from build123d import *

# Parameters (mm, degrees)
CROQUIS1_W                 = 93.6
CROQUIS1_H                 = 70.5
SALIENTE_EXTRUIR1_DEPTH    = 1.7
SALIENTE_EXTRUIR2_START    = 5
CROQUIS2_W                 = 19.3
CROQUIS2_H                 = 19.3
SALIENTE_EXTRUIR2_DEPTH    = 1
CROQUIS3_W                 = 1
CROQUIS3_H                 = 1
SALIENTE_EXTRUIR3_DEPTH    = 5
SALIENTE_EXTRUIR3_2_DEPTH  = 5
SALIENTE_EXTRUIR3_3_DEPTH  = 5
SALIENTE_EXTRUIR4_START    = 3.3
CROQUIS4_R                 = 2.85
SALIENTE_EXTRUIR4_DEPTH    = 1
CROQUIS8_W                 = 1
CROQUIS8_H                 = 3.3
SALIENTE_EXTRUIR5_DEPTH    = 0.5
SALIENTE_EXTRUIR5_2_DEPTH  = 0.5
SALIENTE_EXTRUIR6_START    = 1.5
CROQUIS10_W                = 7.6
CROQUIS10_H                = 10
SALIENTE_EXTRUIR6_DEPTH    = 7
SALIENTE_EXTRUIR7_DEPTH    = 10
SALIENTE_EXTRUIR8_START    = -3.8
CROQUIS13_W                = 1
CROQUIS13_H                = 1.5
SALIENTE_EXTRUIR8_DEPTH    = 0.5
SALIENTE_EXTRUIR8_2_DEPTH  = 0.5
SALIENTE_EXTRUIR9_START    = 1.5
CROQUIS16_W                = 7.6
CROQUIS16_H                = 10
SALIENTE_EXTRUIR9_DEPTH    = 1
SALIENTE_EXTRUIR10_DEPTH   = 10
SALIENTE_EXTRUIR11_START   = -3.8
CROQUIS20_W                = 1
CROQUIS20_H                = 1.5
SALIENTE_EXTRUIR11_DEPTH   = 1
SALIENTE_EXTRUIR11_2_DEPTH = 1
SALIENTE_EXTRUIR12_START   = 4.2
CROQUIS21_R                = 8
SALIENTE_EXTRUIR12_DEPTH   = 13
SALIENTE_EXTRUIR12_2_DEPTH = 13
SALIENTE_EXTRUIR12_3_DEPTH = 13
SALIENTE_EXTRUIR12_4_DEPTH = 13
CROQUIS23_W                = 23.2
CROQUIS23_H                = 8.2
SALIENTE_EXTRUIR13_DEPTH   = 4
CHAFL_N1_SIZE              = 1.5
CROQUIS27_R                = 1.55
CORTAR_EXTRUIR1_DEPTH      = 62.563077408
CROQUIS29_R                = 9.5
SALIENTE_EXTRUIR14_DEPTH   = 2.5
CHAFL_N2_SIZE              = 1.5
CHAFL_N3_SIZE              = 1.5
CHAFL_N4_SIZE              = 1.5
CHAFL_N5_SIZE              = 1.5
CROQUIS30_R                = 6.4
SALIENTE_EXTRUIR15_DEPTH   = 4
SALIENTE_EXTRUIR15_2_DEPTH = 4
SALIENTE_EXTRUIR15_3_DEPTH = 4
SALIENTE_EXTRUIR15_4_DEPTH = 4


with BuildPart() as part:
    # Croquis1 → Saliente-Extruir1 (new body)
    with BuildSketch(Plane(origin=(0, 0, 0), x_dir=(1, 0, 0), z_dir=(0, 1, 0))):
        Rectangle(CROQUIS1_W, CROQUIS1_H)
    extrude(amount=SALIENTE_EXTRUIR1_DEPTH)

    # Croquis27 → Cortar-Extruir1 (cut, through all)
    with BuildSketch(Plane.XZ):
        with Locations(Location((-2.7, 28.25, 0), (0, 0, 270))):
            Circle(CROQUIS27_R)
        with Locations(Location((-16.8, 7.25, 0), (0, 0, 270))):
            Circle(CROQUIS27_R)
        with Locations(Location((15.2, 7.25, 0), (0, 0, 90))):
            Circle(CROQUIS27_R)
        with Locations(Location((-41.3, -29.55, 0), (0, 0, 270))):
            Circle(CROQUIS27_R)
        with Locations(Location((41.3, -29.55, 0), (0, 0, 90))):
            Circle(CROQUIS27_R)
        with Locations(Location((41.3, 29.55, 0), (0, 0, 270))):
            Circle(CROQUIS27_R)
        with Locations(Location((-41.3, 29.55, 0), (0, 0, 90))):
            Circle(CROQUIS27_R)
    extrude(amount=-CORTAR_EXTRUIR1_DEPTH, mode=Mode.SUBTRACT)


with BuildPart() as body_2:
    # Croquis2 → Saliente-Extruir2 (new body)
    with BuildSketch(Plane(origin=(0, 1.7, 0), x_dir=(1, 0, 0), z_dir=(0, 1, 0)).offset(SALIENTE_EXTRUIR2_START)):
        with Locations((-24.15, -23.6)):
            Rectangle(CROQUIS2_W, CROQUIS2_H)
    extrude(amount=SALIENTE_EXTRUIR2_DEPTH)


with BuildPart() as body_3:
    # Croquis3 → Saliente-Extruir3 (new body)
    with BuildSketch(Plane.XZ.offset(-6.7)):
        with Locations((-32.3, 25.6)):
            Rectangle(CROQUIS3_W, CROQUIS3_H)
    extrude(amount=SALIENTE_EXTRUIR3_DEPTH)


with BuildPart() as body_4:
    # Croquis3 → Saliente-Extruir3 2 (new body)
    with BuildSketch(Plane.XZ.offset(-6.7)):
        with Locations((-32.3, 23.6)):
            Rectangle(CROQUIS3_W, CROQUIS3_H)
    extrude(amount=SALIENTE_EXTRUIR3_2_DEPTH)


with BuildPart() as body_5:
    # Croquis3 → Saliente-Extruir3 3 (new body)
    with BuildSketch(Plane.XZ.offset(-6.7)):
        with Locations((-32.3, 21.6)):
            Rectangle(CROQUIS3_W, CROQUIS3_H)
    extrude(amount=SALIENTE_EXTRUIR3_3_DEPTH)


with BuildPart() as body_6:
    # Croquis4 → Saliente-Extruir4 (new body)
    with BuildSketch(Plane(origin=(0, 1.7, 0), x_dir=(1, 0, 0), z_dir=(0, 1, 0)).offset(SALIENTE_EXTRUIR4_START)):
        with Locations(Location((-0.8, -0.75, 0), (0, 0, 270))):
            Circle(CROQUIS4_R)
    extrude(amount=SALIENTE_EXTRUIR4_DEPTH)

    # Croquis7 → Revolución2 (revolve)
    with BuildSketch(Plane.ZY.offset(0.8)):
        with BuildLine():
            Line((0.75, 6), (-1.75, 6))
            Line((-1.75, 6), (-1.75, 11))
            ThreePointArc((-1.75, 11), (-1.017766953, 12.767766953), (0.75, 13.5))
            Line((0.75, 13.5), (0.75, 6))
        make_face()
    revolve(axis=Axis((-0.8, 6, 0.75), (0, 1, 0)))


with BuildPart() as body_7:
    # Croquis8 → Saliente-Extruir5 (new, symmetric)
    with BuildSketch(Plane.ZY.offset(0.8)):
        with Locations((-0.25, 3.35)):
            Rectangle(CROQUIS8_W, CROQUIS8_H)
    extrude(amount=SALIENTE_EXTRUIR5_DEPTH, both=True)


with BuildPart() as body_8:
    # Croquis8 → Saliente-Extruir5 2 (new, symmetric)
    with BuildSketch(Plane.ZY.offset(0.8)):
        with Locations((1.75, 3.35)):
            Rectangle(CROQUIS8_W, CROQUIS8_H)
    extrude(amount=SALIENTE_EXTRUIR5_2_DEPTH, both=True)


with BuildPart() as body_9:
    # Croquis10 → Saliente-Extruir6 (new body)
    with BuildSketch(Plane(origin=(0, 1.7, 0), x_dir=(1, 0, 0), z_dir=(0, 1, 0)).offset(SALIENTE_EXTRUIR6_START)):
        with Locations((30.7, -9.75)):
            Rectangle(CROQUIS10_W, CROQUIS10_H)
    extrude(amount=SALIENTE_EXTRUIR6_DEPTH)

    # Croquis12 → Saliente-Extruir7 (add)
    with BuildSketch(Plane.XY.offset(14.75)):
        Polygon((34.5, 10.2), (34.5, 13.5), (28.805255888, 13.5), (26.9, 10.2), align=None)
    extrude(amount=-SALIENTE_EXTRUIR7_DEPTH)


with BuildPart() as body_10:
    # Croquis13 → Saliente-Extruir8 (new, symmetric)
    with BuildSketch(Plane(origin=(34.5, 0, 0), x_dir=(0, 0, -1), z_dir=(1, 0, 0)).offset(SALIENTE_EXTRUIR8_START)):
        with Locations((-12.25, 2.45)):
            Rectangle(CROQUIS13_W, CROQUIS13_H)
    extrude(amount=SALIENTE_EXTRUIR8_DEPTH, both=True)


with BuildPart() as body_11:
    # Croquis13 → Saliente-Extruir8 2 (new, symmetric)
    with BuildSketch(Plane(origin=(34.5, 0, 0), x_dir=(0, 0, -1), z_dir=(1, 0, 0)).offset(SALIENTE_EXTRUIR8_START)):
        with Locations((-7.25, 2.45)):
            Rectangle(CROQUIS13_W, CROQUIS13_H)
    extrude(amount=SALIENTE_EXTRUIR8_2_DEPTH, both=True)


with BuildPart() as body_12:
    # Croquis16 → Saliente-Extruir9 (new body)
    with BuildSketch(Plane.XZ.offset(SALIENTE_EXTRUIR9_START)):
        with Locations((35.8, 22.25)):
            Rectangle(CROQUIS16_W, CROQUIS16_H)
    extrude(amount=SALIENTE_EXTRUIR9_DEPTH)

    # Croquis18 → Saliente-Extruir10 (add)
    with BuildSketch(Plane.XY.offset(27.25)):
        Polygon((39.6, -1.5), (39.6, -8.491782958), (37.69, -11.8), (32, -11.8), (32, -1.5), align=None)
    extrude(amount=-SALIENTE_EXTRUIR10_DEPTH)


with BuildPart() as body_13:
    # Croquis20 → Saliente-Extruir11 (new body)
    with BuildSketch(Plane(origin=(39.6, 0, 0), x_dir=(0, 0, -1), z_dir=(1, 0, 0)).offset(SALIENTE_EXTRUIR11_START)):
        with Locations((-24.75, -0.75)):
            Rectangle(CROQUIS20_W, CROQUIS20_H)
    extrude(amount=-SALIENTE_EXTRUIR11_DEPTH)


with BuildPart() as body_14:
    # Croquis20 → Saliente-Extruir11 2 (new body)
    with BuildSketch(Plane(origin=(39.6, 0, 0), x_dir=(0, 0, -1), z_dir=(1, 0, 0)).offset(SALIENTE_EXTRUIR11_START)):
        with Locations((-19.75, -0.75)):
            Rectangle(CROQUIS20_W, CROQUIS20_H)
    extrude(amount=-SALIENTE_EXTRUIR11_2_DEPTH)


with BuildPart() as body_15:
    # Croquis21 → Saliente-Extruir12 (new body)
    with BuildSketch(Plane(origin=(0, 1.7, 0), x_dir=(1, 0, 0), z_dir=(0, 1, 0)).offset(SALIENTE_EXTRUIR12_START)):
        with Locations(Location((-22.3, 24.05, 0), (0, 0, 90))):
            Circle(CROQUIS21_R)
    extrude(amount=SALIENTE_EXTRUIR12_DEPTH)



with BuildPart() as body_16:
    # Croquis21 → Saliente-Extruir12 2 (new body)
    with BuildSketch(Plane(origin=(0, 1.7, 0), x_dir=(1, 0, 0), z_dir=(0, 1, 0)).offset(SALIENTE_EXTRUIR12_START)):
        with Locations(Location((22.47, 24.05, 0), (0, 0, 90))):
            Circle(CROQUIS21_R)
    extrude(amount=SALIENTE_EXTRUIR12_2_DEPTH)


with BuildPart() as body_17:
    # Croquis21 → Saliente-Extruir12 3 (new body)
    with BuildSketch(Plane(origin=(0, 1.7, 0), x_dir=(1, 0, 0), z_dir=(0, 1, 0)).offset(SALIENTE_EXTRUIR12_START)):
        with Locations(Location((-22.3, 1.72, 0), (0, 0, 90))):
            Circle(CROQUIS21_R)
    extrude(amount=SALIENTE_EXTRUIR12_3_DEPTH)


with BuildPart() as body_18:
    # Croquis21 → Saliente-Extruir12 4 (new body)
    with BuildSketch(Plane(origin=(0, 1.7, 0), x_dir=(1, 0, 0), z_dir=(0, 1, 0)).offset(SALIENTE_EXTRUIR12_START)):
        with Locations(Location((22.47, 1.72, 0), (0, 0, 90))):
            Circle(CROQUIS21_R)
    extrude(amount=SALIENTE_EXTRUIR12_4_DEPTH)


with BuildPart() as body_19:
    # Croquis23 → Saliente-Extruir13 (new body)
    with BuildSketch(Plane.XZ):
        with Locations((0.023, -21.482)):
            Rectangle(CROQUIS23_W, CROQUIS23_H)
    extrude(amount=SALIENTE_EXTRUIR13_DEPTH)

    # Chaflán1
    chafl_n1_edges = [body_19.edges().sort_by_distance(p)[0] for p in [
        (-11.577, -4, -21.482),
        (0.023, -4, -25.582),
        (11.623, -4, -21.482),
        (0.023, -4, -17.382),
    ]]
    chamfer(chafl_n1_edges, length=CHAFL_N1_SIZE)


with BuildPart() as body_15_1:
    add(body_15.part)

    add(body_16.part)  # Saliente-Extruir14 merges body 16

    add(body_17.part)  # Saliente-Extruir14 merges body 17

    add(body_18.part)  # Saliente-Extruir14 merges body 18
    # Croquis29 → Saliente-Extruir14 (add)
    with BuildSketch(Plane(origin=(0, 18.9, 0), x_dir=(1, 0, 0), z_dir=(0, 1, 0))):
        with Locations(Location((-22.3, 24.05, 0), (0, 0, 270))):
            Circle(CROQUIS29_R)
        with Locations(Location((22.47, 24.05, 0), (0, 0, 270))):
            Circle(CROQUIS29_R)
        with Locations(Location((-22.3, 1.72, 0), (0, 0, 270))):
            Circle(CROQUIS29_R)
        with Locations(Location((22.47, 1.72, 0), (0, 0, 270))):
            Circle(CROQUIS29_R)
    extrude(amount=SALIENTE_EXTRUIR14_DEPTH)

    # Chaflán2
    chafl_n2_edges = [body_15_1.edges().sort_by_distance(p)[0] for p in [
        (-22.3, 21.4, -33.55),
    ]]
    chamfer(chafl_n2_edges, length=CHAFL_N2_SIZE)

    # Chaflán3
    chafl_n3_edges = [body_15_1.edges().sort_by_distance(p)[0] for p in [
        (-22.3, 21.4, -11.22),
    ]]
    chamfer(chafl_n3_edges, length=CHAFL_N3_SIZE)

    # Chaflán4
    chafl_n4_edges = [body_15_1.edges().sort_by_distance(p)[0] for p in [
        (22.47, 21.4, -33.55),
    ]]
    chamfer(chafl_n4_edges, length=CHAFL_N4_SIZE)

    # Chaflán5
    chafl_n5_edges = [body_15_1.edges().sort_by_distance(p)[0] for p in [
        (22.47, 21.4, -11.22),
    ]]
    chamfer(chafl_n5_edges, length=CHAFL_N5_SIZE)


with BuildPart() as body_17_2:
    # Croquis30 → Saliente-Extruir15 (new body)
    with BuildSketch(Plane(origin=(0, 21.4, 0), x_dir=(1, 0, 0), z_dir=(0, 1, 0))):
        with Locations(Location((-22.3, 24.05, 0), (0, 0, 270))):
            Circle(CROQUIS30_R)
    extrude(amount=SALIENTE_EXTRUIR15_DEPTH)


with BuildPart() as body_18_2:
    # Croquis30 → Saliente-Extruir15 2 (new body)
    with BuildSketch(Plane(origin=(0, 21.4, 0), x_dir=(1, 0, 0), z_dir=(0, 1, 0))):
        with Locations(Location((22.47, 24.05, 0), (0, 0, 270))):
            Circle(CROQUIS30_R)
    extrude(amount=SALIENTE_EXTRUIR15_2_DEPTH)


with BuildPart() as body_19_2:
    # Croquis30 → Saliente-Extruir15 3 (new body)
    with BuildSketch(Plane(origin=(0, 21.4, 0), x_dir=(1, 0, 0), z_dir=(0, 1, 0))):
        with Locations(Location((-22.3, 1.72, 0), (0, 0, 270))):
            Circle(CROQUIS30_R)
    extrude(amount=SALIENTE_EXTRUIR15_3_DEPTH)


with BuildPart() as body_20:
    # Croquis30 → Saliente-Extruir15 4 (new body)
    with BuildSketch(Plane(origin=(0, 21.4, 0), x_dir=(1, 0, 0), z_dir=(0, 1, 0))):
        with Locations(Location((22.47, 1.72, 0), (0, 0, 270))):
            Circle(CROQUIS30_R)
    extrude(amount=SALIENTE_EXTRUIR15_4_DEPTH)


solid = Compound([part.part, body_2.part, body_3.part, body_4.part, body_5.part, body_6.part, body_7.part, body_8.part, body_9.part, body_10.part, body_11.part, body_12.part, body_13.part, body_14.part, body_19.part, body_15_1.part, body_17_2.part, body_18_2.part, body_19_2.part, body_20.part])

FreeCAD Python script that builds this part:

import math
import FreeCAD as App
import Part
import Sketcher

V = App.Vector
Q = App.Units.Quantity


def edges_at(feature, points):
    """Names of the edges that pass closest to the given points."""
    edges = feature.Shape.Edges
    near = lambda p: min(range(len(edges)), key=lambda i: edges[i].distToShape(Part.Vertex(*p))[0])
    return sorted({f"Edge{near(p) + 1}" for p in points})

doc = App.newDocument("Part")
body = doc.addObject("PartDesign::Body", "Body")

# Sketch on XZ plane
sketch1 = doc.addObject("Sketcher::SketchObject", "Sketch")
body.addObject(sketch1)
sketch1.AttachmentSupport = (doc.XZ_Plane, [""])
sketch1.MapMode = "FlatFace"
sketch1.addGeometry(Part.LineSegment(V(-46.8, -35.25, 0), V(-46.8, 35.25, 0)), False)
sketch1.addGeometry(Part.LineSegment(V(-46.8, 35.25, 0), V(46.8, 35.25, 0)), False)
sketch1.addGeometry(Part.LineSegment(V(46.8, 35.25, 0), V(46.8, -35.25, 0)), False)
sketch1.addGeometry(Part.LineSegment(V(46.8, -35.25, 0), V(-46.8, -35.25, 0)), False)
sketch1.addConstraint(Sketcher.Constraint("Coincident", 0, 2, 1, 1))
sketch1.addConstraint(Sketcher.Constraint("Coincident", 1, 2, 2, 1))
sketch1.addConstraint(Sketcher.Constraint("Coincident", 2, 2, 3, 1))
sketch1.addConstraint(Sketcher.Constraint("Coincident", 3, 2, 0, 1))
sketch1.addConstraint(Sketcher.Constraint("Vertical", 0))
sketch1.addConstraint(Sketcher.Constraint("Horizontal", 1))
sketch1.addConstraint(Sketcher.Constraint("Vertical", 2))
sketch1.addConstraint(Sketcher.Constraint("Horizontal", 3))
sketch1.addConstraint(Sketcher.Constraint("Symmetric", 0, 2, 2, 2, -1, 1))
sketch1.addConstraint(Sketcher.Constraint("DistanceX", 1, 1, 1, 2, Q("93.6 mm")))
sketch1.addConstraint(Sketcher.Constraint("DistanceY", 0, 1, 0, 2, Q("70.5 mm")))
pad1 = doc.addObject("PartDesign::Pad", "Pad")
body.addObject(pad1)
pad1.Profile = sketch1
pad1.Length = 1.7
pad1.Reversed = True

# Sketch on XZ plane
sketch2 = doc.addObject("Sketcher::SketchObject", "Sketch001")
body.addObject(sketch2)
sketch2.AttachmentSupport = (doc.XZ_Plane, [""])
sketch2.MapMode = "FlatFace"
sketch2.addGeometry(Part.Circle(V(-2.7, 28.25, 0), V(0, 0, 1), 1.55), False)
sketch2.addGeometry(Part.Circle(V(-16.8, 7.25, 0), V(0, 0, 1), 1.55), False)
sketch2.addGeometry(Part.Circle(V(15.2, 7.25, 0), V(0, 0, 1), 1.55), False)
sketch2.addGeometry(Part.Circle(V(-41.3, -29.55, 0), V(0, 0, 1), 1.55), False)
sketch2.addGeometry(Part.Circle(V(41.3, -29.55, 0), V(0, 0, 1), 1.55), False)
sketch2.addGeometry(Part.Circle(V(41.3, 29.55, 0), V(0, 0, 1), 1.55), False)
sketch2.addGeometry(Part.Circle(V(-41.3, 29.55, 0), V(0, 0, 1), 1.55), False)
sketch2.addConstraint(Sketcher.Constraint("Equal", 0, 1))
sketch2.addConstraint(Sketcher.Constraint("Equal", 1, 2))
sketch2.addConstraint(Sketcher.Constraint("Equal", 2, 3))
sketch2.addConstraint(Sketcher.Constraint("Equal", 3, 4))
sketch2.addConstraint(Sketcher.Constraint("Equal", 4, 5))
sketch2.addConstraint(Sketcher.Constraint("Equal", 5, 6))
sketch2.addConstraint(Sketcher.Constraint("Symmetric", 3, 3, 5, 3, -1, 1))
sketch2.addConstraint(Sketcher.Constraint("Symmetric", 4, 3, 6, 3, -1, 1))
sketch2.addConstraint(Sketcher.Constraint("Symmetric", 3, 3, 4, 3, -2))
sketch2.addConstraint(Sketcher.Constraint("Horizontal", 1, 3, 2, 3))
sketch2.addConstraint(Sketcher.Constraint("Diameter", 0, Q("3.1 mm")))
sketch2.addConstraint(Sketcher.Constraint("DistanceY", 1, 3, 0, 3, Q("21 mm")))
sketch2.addConstraint(Sketcher.Constraint("DistanceX", 1, 3, 2, 3, Q("32 mm")))
sketch2.addConstraint(Sketcher.Constraint("DistanceX", 0, 3, 4, 3, Q("44 mm")))
sketch2.addConstraint(Sketcher.Constraint("DistanceX", 0, 3, -1, 1, Q("2.7 mm")))
sketch2.addConstraint(Sketcher.Constraint("DistanceX", 1, 3, -1, 1, Q("16.8 mm")))
sketch2.addConstraint(Sketcher.Constraint("DistanceY", 3, 3, 1, 3, Q("36.8 mm")))
sketch2.addConstraint(Sketcher.Constraint("DistanceY", 2, 3, 5, 3, Q("22.3 mm")))
pocket1 = doc.addObject("PartDesign::Pocket", "Pocket")
body.addObject(pocket1)
pocket1.Profile = sketch2
pocket1.Type = "ThroughAll"
body2 = doc.addObject("PartDesign::Body", "Body001")

# Sketch on XZ plane
sketch3 = doc.addObject("Sketcher::SketchObject", "Sketch002")
body2.addObject(sketch3)
sketch3.AttachmentSupport = (doc.getObject("XZ_Plane001"), [""])
sketch3.MapMode = "FlatFace"
sketch3.AttachmentOffset = App.Placement(V(0, 0, -6.7), App.Rotation())
sketch3.addGeometry(Part.LineSegment(V(-33.8, 13.95, 0), V(-33.8, 33.25, 0)), False)
sketch3.addGeometry(Part.LineSegment(V(-33.8, 33.25, 0), V(-14.5, 33.25, 0)), False)
sketch3.addGeometry(Part.LineSegment(V(-14.5, 33.25, 0), V(-14.5, 13.95, 0)), False)
sketch3.addGeometry(Part.LineSegment(V(-14.5, 13.95, 0), V(-33.8, 13.95, 0)), False)
sketch3.addConstraint(Sketcher.Constraint("Coincident", 0, 2, 1, 1))
sketch3.addConstraint(Sketcher.Constraint("Coincident", 1, 2, 2, 1))
sketch3.addConstraint(Sketcher.Constraint("Coincident", 2, 2, 3, 1))
sketch3.addConstraint(Sketcher.Constraint("Coincident", 3, 2, 0, 1))
sketch3.addConstraint(Sketcher.Constraint("Vertical", 0))
sketch3.addConstraint(Sketcher.Constraint("Horizontal", 1))
sketch3.addConstraint(Sketcher.Constraint("Vertical", 2))
sketch3.addConstraint(Sketcher.Constraint("Horizontal", 3))
sketch3.addConstraint(Sketcher.Constraint("Equal", 3, 0))
sketch3.addConstraint(Sketcher.Constraint("DistanceX", 1, 1, 1, 2, Q("19.3 mm")))
sketch3.addConstraint(Sketcher.Constraint("DistanceX", 0, 2, -1, 1, Q("33.8 mm")))
sketch3.addConstraint(Sketcher.Constraint("DistanceY", -1, 1, 0, 2, Q("33.25 mm")))
pad2 = doc.addObject("PartDesign::Pad", "Pad001")
body2.addObject(pad2)
pad2.Profile = sketch3
pad2.Length = 1
pad2.Reversed = True
body3 = doc.addObject("PartDesign::Body", "Body002")

# Sketch on XZ plane
sketch4 = doc.addObject("Sketcher::SketchObject", "Sketch003")
body3.addObject(sketch4)
sketch4.AttachmentSupport = (doc.getObject("XZ_Plane002"), [""])
sketch4.MapMode = "FlatFace"
sketch4.AttachmentOffset = App.Placement(V(0, 0, -6.7), App.Rotation())
sketch4.addGeometry(Part.LineSegment(V(-32.8, 26.1, 0), V(-32.8, 25.1, 0)), False)
sketch4.addGeometry(Part.LineSegment(V(-32.8, 25.1, 0), V(-31.8, 25.1, 0)), False)
sketch4.addGeometry(Part.LineSegment(V(-31.8, 25.1, 0), V(-31.8, 26.1, 0)), False)
sketch4.addGeometry(Part.LineSegment(V(-31.8, 26.1, 0), V(-32.8, 26.1, 0)), False)
sketch4.addConstraint(Sketcher.Constraint("Coincident", 0, 2, 1, 1))
sketch4.addConstraint(Sketcher.Constraint("Coincident", 1, 2, 2, 1))
sketch4.addConstraint(Sketcher.Constraint("Coincident", 2, 2, 3, 1))
sketch4.addConstraint(Sketcher.Constraint("Coincident", 3, 2, 0, 1))
sketch4.addConstraint(Sketcher.Constraint("Vertical", 0))
sketch4.addConstraint(Sketcher.Constraint("Horizontal", 1))
sketch4.addConstraint(Sketcher.Constraint("Vertical", 2))
sketch4.addConstraint(Sketcher.Constraint("Horizontal", 3))
sketch4.addConstraint(Sketcher.Constraint("Equal", 3, 0))
sketch4.addConstraint(Sketcher.Constraint("DistanceX", 1, 1, 1, 2, Q("1 mm")))
sketch4.addConstraint(Sketcher.Constraint("DistanceX", 0, 2, -1, 1, Q("32.8 mm")))
sketch4.addConstraint(Sketcher.Constraint("DistanceY", -1, 1, 0, 2, Q("25.1 mm")))
pad3 = doc.addObject("PartDesign::Pad", "Pad002")
body3.addObject(pad3)
pad3.Profile = sketch4
pad3.Length = 5
body4 = doc.addObject("PartDesign::Body", "Body003")

# Sketch on XZ plane
sketch5 = doc.addObject("Sketcher::SketchObject", "Sketch004")
body4.addObject(sketch5)
sketch5.AttachmentSupport = (doc.getObject("XZ_Plane003"), [""])
sketch5.MapMode = "FlatFace"
sketch5.AttachmentOffset = App.Placement(V(0, 0, -6.7), App.Rotation())
sketch5.addGeometry(Part.LineSegment(V(-32.8, 24.1, 0), V(-32.8, 23.1, 0)), False)
sketch5.addGeometry(Part.LineSegment(V(-32.8, 23.1, 0), V(-31.8, 23.1, 0)), False)
sketch5.addGeometry(Part.LineSegment(V(-31.8, 23.1, 0), V(-31.8, 24.1, 0)), False)
sketch5.addGeometry(Part.LineSegment(V(-31.8, 24.1, 0), V(-32.8, 24.1, 0)), False)
sketch5.addConstraint(Sketcher.Constraint("Coincident", 0, 2, 1, 1))
sketch5.addConstraint(Sketcher.Constraint("Coincident", 1, 2, 2, 1))
sketch5.addConstraint(Sketcher.Constraint("Coincident", 2, 2, 3, 1))
sketch5.addConstraint(Sketcher.Constraint("Coincident", 3, 2, 0, 1))
sketch5.addConstraint(Sketcher.Constraint("Vertical", 0))
sketch5.addConstraint(Sketcher.Constraint("Horizontal", 1))
sketch5.addConstraint(Sketcher.Constraint("Vertical", 2))
sketch5.addConstraint(Sketcher.Constraint("Horizontal", 3))
sketch5.addConstraint(Sketcher.Constraint("Equal", 3, 0))
sketch5.addConstraint(Sketcher.Constraint("DistanceX", 1, 1, 1, 2, Q("1 mm")))
sketch5.addConstraint(Sketcher.Constraint("DistanceX", 0, 2, -1, 1, Q("32.8 mm")))
sketch5.addConstraint(Sketcher.Constraint("DistanceY", -1, 1, 0, 2, Q("23.1 mm")))
pad4 = doc.addObject("PartDesign::Pad", "Pad003")
body4.addObject(pad4)
pad4.Profile = sketch5
pad4.Length = 5
body5 = doc.addObject("PartDesign::Body", "Body004")

# Sketch on XZ plane
sketch6 = doc.addObject("Sketcher::SketchObject", "Sketch005")
body5.addObject(sketch6)
sketch6.AttachmentSupport = (doc.getObject("XZ_Plane004"), [""])
sketch6.MapMode = "FlatFace"
sketch6.AttachmentOffset = App.Placement(V(0, 0, -6.7), App.Rotation())
sketch6.addGeometry(Part.LineSegment(V(-32.8, 22.1, 0), V(-32.8, 21.1, 0)), False)
sketch6.addGeometry(Part.LineSegment(V(-32.8, 21.1, 0), V(-31.8, 21.1, 0)), False)
sketch6.addGeometry(Part.LineSegment(V(-31.8, 21.1, 0), V(-31.8, 22.1, 0)), False)
sketch6.addGeometry(Part.LineSegment(V(-31.8, 22.1, 0), V(-32.8, 22.1, 0)), False)
sketch6.addConstraint(Sketcher.Constraint("Coincident", 0, 2, 1, 1))
sketch6.addConstraint(Sketcher.Constraint("Coincident", 1, 2, 2, 1))
sketch6.addConstraint(Sketcher.Constraint("Coincident", 2, 2, 3, 1))
sketch6.addConstraint(Sketcher.Constraint("Coincident", 3, 2, 0, 1))
sketch6.addConstraint(Sketcher.Constraint("Vertical", 0))
sketch6.addConstraint(Sketcher.Constraint("Horizontal", 1))
sketch6.addConstraint(Sketcher.Constraint("Vertical", 2))
sketch6.addConstraint(Sketcher.Constraint("Horizontal", 3))
sketch6.addConstraint(Sketcher.Constraint("Equal", 3, 0))
sketch6.addConstraint(Sketcher.Constraint("DistanceX", 1, 1, 1, 2, Q("1 mm")))
sketch6.addConstraint(Sketcher.Constraint("DistanceX", 0, 2, -1, 1, Q("32.8 mm")))
sketch6.addConstraint(Sketcher.Constraint("DistanceY", -1, 1, 0, 2, Q("21.1 mm")))
pad5 = doc.addObject("PartDesign::Pad", "Pad004")
body5.addObject(pad5)
pad5.Profile = sketch6
pad5.Length = 5
body6 = doc.addObject("PartDesign::Body", "Body005")

# Sketch on XZ plane
sketch7 = doc.addObject("Sketcher::SketchObject", "Sketch006")
body6.addObject(sketch7)
sketch7.AttachmentSupport = (doc.getObject("XZ_Plane005"), [""])
sketch7.MapMode = "FlatFace"
sketch7.AttachmentOffset = App.Placement(V(0, 0, -5), App.Rotation())
sketch7.addGeometry(Part.Circle(V(-0.8, 0.75, 0), V(0, 0, 1), 2.85), False)
sketch7.addConstraint(Sketcher.Constraint("Diameter", 0, Q("5.7 mm")))
sketch7.addConstraint(Sketcher.Constraint("DistanceX", 0, 3, -1, 1, Q("0.8 mm")))
sketch7.addConstraint(Sketcher.Constraint("DistanceY", -1, 1, 0, 3, Q("0.75 mm")))
pad6 = doc.addObject("PartDesign::Pad", "Pad005")
body6.addObject(pad6)
pad6.Profile = sketch7
pad6.Length = 1
pad6.Reversed = True

# Sketch on YZ plane
sketch8 = doc.addObject("Sketcher::SketchObject", "Sketch007")
body6.addObject(sketch8)
sketch8.AttachmentSupport = (doc.getObject("YZ_Plane005"), [""])
sketch8.MapMode = "FlatFace"
sketch8.AttachmentOffset = App.Placement(V(0, 0, -0.8), App.Rotation())
sketch8.addGeometry(Part.LineSegment(V(6, -1.75, 0), V(6, 0.75, 0)), False)
sketch8.addGeometry(Part.LineSegment(V(6, 0.75, 0), V(13.5, 0.75, 0)), False)
sketch8.addGeometry(Part.ArcOfCircle(Part.Circle(V(11, 0.75, 0), V(0, 0, 1), 2.5), math.radians(-90), math.radians(0)), False)
sketch8.addGeometry(Part.LineSegment(V(11, -1.75, 0), V(6, -1.75, 0)), False)
sketch8.addGeometry(Part.LineSegment(V(6, 0.75, 0), V(13.5, 0.75, 0)), True)  # axis
sketch8.addConstraint(Sketcher.Constraint("Coincident", 0, 2, 1, 1))
sketch8.addConstraint(Sketcher.Constraint("Coincident", 1, 2, 2, 2))
sketch8.addConstraint(Sketcher.Constraint("Tangent", 2, 1, 3, 1))
sketch8.addConstraint(Sketcher.Constraint("Coincident", 3, 2, 0, 1))
sketch8.addConstraint(Sketcher.Constraint("Vertical", 0))
sketch8.addConstraint(Sketcher.Constraint("Horizontal", 1))
sketch8.addConstraint(Sketcher.Constraint("Horizontal", 3))
sketch8.addConstraint(Sketcher.Constraint("Horizontal", 4))
sketch8.addConstraint(Sketcher.Constraint("Coincident", 4, 1, 0, 2))
sketch8.addConstraint(Sketcher.Constraint("Horizontal", 2, 3, 0, 2))
sketch8.addConstraint(Sketcher.Constraint("Equal", 1, 4))
sketch8.addConstraint(Sketcher.Constraint("Radius", 2, Q("2.5 mm")))
sketch8.addConstraint(Sketcher.Constraint("DistanceX", 3, 2, 3, 1, Q("5 mm")))
sketch8.addConstraint(Sketcher.Constraint("DistanceX", -1, 1, 2, 3, Q("11 mm")))
sketch8.addConstraint(Sketcher.Constraint("DistanceY", -1, 1, 2, 3, Q("0.75 mm")))
revolution = doc.addObject("PartDesign::Revolution", "Revolution")
body6.addObject(revolution)
revolution.Profile = sketch8
revolution.ReferenceAxis = (sketch8, ["Axis0"])
revolution.Angle = 360
body7 = doc.addObject("PartDesign::Body", "Body006")

# Sketch on YZ plane
sketch9 = doc.addObject("Sketcher::SketchObject", "Sketch008")
body7.addObject(sketch9)
sketch9.AttachmentSupport = (doc.getObject("YZ_Plane006"), [""])
sketch9.MapMode = "FlatFace"
sketch9.AttachmentOffset = App.Placement(V(0, 0, -0.8), App.Rotation())
sketch9.addGeometry(Part.LineSegment(V(5, -0.75, 0), V(1.7, -0.75, 0)), False)
sketch9.addGeometry(Part.LineSegment(V(1.7, -0.75, 0), V(1.7, 0.25, 0)), False)
sketch9.addGeometry(Part.LineSegment(V(1.7, 0.25, 0), V(5, 0.25, 0)), False)
sketch9.addGeometry(Part.LineSegment(V(5, 0.25, 0), V(5, -0.75, 0)), False)
sketch9.addConstraint(Sketcher.Constraint("Coincident", 0, 2, 1, 1))
sketch9.addConstraint(Sketcher.Constraint("Coincident", 1, 2, 2, 1))
sketch9.addConstraint(Sketcher.Constraint("Coincident", 2, 2, 3, 1))
sketch9.addConstraint(Sketcher.Constraint("Coincident", 3, 2, 0, 1))
sketch9.addConstraint(Sketcher.Constraint("Horizontal", 0))
sketch9.addConstraint(Sketcher.Constraint("Vertical", 1))
sketch9.addConstraint(Sketcher.Constraint("Horizontal", 2))
sketch9.addConstraint(Sketcher.Constraint("Vertical", 3))
sketch9.addConstraint(Sketcher.Constraint("DistanceY", 1, 1, 1, 2, Q("1 mm")))
sketch9.addConstraint(Sketcher.Constraint("DistanceX", 0, 2, 0, 1, Q("3.3 mm")))
sketch9.addConstraint(Sketcher.Constraint("DistanceX", -1, 1, 2, 2, Q("5 mm")))
sketch9.addConstraint(Sketcher.Constraint("DistanceY", 0, 2, -1, 1, Q("0.75 mm")))
pad7 = doc.addObject("PartDesign::Pad", "Pad006")
body7.addObject(pad7)
pad7.Profile = sketch9
pad7.Length = 1
pad7.Midplane = True
body8 = doc.addObject("PartDesign::Body", "Body007")

# Sketch on YZ plane
sketch10 = doc.addObject("Sketcher::SketchObject", "Sketch009")
body8.addObject(sketch10)
sketch10.AttachmentSupport = (doc.getObject("YZ_Plane007"), [""])
sketch10.MapMode = "FlatFace"
sketch10.AttachmentOffset = App.Placement(V(0, 0, -0.8), App.Rotation())
sketch10.addGeometry(Part.LineSegment(V(5, 1.25, 0), V(1.7, 1.25, 0)), False)
sketch10.addGeometry(Part.LineSegment(V(1.7, 1.25, 0), V(1.7, 2.25, 0)), False)
sketch10.addGeometry(Part.LineSegment(V(1.7, 2.25, 0), V(5, 2.25, 0)), False)
sketch10.addGeometry(Part.LineSegment(V(5, 2.25, 0), V(5, 1.25, 0)), False)
sketch10.addConstraint(Sketcher.Constraint("Coincident", 0, 2, 1, 1))
sketch10.addConstraint(Sketcher.Constraint("Coincident", 1, 2, 2, 1))
sketch10.addConstraint(Sketcher.Constraint("Coincident", 2, 2, 3, 1))
sketch10.addConstraint(Sketcher.Constraint("Coincident", 3, 2, 0, 1))
sketch10.addConstraint(Sketcher.Constraint("Horizontal", 0))
sketch10.addConstraint(Sketcher.Constraint("Vertical", 1))
sketch10.addConstraint(Sketcher.Constraint("Horizontal", 2))
sketch10.addConstraint(Sketcher.Constraint("Vertical", 3))
sketch10.addConstraint(Sketcher.Constraint("DistanceY", 1, 1, 1, 2, Q("1 mm")))
sketch10.addConstraint(Sketcher.Constraint("DistanceX", 0, 2, 0, 1, Q("3.3 mm")))
sketch10.addConstraint(Sketcher.Constraint("DistanceX", -1, 1, 2, 2, Q("5 mm")))
sketch10.addConstraint(Sketcher.Constraint("DistanceY", -1, 1, 0, 2, Q("1.25 mm")))
pad8 = doc.addObject("PartDesign::Pad", "Pad007")
body8.addObject(pad8)
pad8.Profile = sketch10
pad8.Length = 1
pad8.Midplane = True
body9 = doc.addObject("PartDesign::Body", "Body008")

# Sketch on XZ plane
sketch11 = doc.addObject("Sketcher::SketchObject", "Sketch010")
body9.addObject(sketch11)
sketch11.AttachmentSupport = (doc.getObject("XZ_Plane008"), [""])
sketch11.MapMode = "FlatFace"
sketch11.AttachmentOffset = App.Placement(V(0, 0, -3.2), App.Rotation())
sketch11.addGeometry(Part.LineSegment(V(26.9, 4.75, 0), V(26.9, 14.75, 0)), False)
sketch11.addGeometry(Part.LineSegment(V(26.9, 14.75, 0), V(34.5, 14.75, 0)), False)
sketch11.addGeometry(Part.LineSegment(V(34.5, 14.75, 0), V(34.5, 4.75, 0)), False)
sketch11.addGeometry(Part.LineSegment(V(34.5, 4.75, 0), V(26.9, 4.75, 0)), False)
sketch11.addConstraint(Sketcher.Constraint("Coincident", 0, 2, 1, 1))
sketch11.addConstraint(Sketcher.Constraint("Coincident", 1, 2, 2, 1))
sketch11.addConstraint(Sketcher.Constraint("Coincident", 2, 2, 3, 1))
sketch11.addConstraint(Sketcher.Constraint("Coincident", 3, 2, 0, 1))
sketch11.addConstraint(Sketcher.Constraint("Vertical", 0))
sketch11.addConstraint(Sketcher.Constraint("Horizontal", 1))
sketch11.addConstraint(Sketcher.Constraint("Vertical", 2))
sketch11.addConstraint(Sketcher.Constraint("Horizontal", 3))
sketch11.addConstraint(Sketcher.Constraint("DistanceY", 0, 1, 0, 2, Q("10 mm")))
sketch11.addConstraint(Sketcher.Constraint("DistanceX", 1, 1, 1, 2, Q("7.6 mm")))
sketch11.addConstraint(Sketcher.Constraint("DistanceX", -1, 1, 0, 2, Q("26.9 mm")))
sketch11.addConstraint(Sketcher.Constraint("DistanceY", -1, 1, 0, 2, Q("14.75 mm")))
pad9 = doc.addObject("PartDesign::Pad", "Pad008")
body9.addObject(pad9)
pad9.Profile = sketch11
pad9.Length = 7
pad9.Reversed = True

# Sketch on XY plane
sketch12 = doc.addObject("Sketcher::SketchObject", "Sketch011")
body9.addObject(sketch12)
sketch12.AttachmentSupport = (doc.getObject("XY_Plane008"), [""])
sketch12.MapMode = "FlatFace"
sketch12.AttachmentOffset = App.Placement(V(0, 0, 14.75), App.Rotation())
sketch12.addGeometry(Part.LineSegment(V(34.5, 10.2, 0), V(34.5, 13.5, 0)), False)
sketch12.addGeometry(Part.LineSegment(V(34.5, 13.5, 0), V(28.805256, 13.5, 0)), False)
sketch12.addGeometry(Part.LineSegment(V(28.805256, 13.5, 0), V(26.9, 10.2, 0)), False)
sketch12.addGeometry(Part.LineSegment(V(26.9, 10.2, 0), V(34.5, 10.2, 0)), False)
sketch12.addConstraint(Sketcher.Constraint("Coincident", 0, 2, 1, 1))
sketch12.addConstraint(Sketcher.Constraint("Coincident", 1, 2, 2, 1))
sketch12.addConstraint(Sketcher.Constraint("Coincident", 2, 2, 3, 1))
sketch12.addConstraint(Sketcher.Constraint("Coincident", 3, 2, 0, 1))
sketch12.addConstraint(Sketcher.Constraint("Vertical", 0))
sketch12.addConstraint(Sketcher.Constraint("Horizontal", 1))
sketch12.addConstraint(Sketcher.Constraint("Horizontal", 3))
sketch12.addConstraint(Sketcher.Constraint("Angle", 2, Q("-120 deg")))
sketch12.addConstraint(Sketcher.Constraint("DistanceX", 3, 1, 3, 2, Q("7.6 mm")))
sketch12.addConstraint(Sketcher.Constraint("DistanceY", 0, 1, 0, 2, Q("3.3 mm")))
sketch12.addConstraint(Sketcher.Constraint("DistanceX", -1, 1, 0, 2, Q("34.5 mm")))
sketch12.addConstraint(Sketcher.Constraint("DistanceY", -1, 1, 0, 2, Q("13.5 mm")))
pad10 = doc.addObject("PartDesign::Pad", "Pad009")
body9.addObject(pad10)
pad10.Profile = sketch12
pad10.Length = 10
pad10.Reversed = True
body10 = doc.addObject("PartDesign::Body", "Body009")

# Sketch on YZ plane
sketch13 = doc.addObject("Sketcher::SketchObject", "Sketch012")
body10.addObject(sketch13)
sketch13.AttachmentSupport = (doc.getObject("YZ_Plane009"), [""])
sketch13.MapMode = "FlatFace"
sketch13.AttachmentOffset = App.Placement(V(0, 0, 30.7), App.Rotation())
sketch13.addGeometry(Part.LineSegment(V(3.2, 12.75, 0), V(1.7, 12.75, 0)), False)
sketch13.addGeometry(Part.LineSegment(V(1.7, 12.75, 0), V(1.7, 11.75, 0)), False)
sketch13.addGeometry(Part.LineSegment(V(1.7, 11.75, 0), V(3.2, 11.75, 0)), False)
sketch13.addGeometry(Part.LineSegment(V(3.2, 11.75, 0), V(3.2, 12.75, 0)), False)
sketch13.addConstraint(Sketcher.Constraint("Coincident", 0, 2, 1, 1))
sketch13.addConstraint(Sketcher.Constraint("Coincident", 1, 2, 2, 1))
sketch13.addConstraint(Sketcher.Constraint("Coincident", 2, 2, 3, 1))
sketch13.addConstraint(Sketcher.Constraint("Coincident", 3, 2, 0, 1))
sketch13.addConstraint(Sketcher.Constraint("Horizontal", 0))
sketch13.addConstraint(Sketcher.Constraint("Vertical", 1))
sketch13.addConstraint(Sketcher.Constraint("Horizontal", 2))
sketch13.addConstraint(Sketcher.Constraint("Vertical", 3))
sketch13.addConstraint(Sketcher.Constraint("DistanceY", 1, 2, 1, 1, Q("1 mm")))
sketch13.addConstraint(Sketcher.Constraint("DistanceX", 0, 2, 0, 1, Q("1.5 mm")))
sketch13.addConstraint(Sketcher.Constraint("DistanceX", -1, 1, 0, 2, Q("1.7 mm")))
sketch13.addConstraint(Sketcher.Constraint("DistanceY", -1, 1, 0, 2, Q("12.75 mm")))
pad11 = doc.addObject("PartDesign::Pad", "Pad010")
body10.addObject(pad11)
pad11.Profile = sketch13
pad11.Length = 1
pad11.Midplane = True
body11 = doc.addObject("PartDesign::Body", "Body010")

# Sketch on YZ plane
sketch14 = doc.addObject("Sketcher::SketchObject", "Sketch013")
body11.addObject(sketch14)
sketch14.AttachmentSupport = (doc.getObject("YZ_Plane010"), [""])
sketch14.MapMode = "FlatFace"
sketch14.AttachmentOffset = App.Placement(V(0, 0, 30.7), App.Rotation())
sketch14.addGeometry(Part.LineSegment(V(3.2, 7.75, 0), V(1.7, 7.75, 0)), False)
sketch14.addGeometry(Part.LineSegment(V(1.7, 7.75, 0), V(1.7, 6.75, 0)), False)
sketch14.addGeometry(Part.LineSegment(V(1.7, 6.75, 0), V(3.2, 6.75, 0)), False)
sketch14.addGeometry(Part.LineSegment(V(3.2, 6.75, 0), V(3.2, 7.75, 0)), False)
sketch14.addConstraint(Sketcher.Constraint("Coincident", 0, 2, 1, 1))
sketch14.addConstraint(Sketcher.Constraint("Coincident", 1, 2, 2, 1))
sketch14.addConstraint(Sketcher.Constraint("Coincident", 2, 2, 3, 1))
sketch14.addConstraint(Sketcher.Constraint("Coincident", 3, 2, 0, 1))
sketch14.addConstraint(Sketcher.Constraint("Horizontal", 0))
sketch14.addConstraint(Sketcher.Constraint("Vertical", 1))
sketch14.addConstraint(Sketcher.Constraint("Horizontal", 2))
sketch14.addConstraint(Sketcher.Constraint("Vertical", 3))
sketch14.addConstraint(Sketcher.Constraint("DistanceY", 1, 2, 1, 1, Q("1 mm")))
sketch14.addConstraint(Sketcher.Constraint("DistanceX", 0, 2, 0, 1, Q("1.5 mm")))
sketch14.addConstraint(Sketcher.Constraint("DistanceX", -1, 1, 0, 2, Q("1.7 mm")))
sketch14.addConstraint(Sketcher.Constraint("DistanceY", -1, 1, 0, 2, Q("7.75 mm")))
pad12 = doc.addObject("PartDesign::Pad", "Pad011")
body11.addObject(pad12)
pad12.Profile = sketch14
pad12.Length = 1
pad12.Midplane = True
body12 = doc.addObject("PartDesign::Body", "Body011")

# Sketch on XZ plane
sketch15 = doc.addObject("Sketcher::SketchObject", "Sketch014")
body12.addObject(sketch15)
sketch15.AttachmentSupport = (doc.getObject("XZ_Plane011"), [""])
sketch15.MapMode = "FlatFace"
sketch15.AttachmentOffset = App.Placement(V(0, 0, 1.5), App.Rotation())
sketch15.addGeometry(Part.LineSegment(V(32, 27.25, 0), V(32, 17.25, 0)), False)
sketch15.addGeometry(Part.LineSegment(V(32, 17.25, 0), V(39.6, 17.25, 0)), False)
sketch15.addGeometry(Part.LineSegment(V(39.6, 17.25, 0), V(39.6, 27.25, 0)), False)
sketch15.addGeometry(Part.LineSegment(V(39.6, 27.25, 0), V(32, 27.25, 0)), False)
sketch15.addConstraint(Sketcher.Constraint("Coincident", 0, 2, 1, 1))
sketch15.addConstraint(Sketcher.Constraint("Coincident", 1, 2, 2, 1))
sketch15.addConstraint(Sketcher.Constraint("Coincident", 2, 2, 3, 1))
sketch15.addConstraint(Sketcher.Constraint("Coincident", 3, 2, 0, 1))
sketch15.addConstraint(Sketcher.Constraint("Vertical", 0))
sketch15.addConstraint(Sketcher.Constraint("Horizontal", 1))
sketch15.addConstraint(Sketcher.Constraint("Vertical", 2))
sketch15.addConstraint(Sketcher.Constraint("Horizontal", 3))
sketch15.addConstraint(Sketcher.Constraint("DistanceY", 0, 2, 0, 1, Q("10 mm")))
sketch15.addConstraint(Sketcher.Constraint("DistanceX", 1, 1, 1, 2, Q("7.6 mm")))
sketch15.addConstraint(Sketcher.Constraint("DistanceX", -1, 1, 0, 2, Q("32 mm")))
sketch15.addConstraint(Sketcher.Constraint("DistanceY", -1, 1, 0, 2, Q("17.25 mm")))
pad13 = doc.addObject("PartDesign::Pad", "Pad012")
body12.addObject(pad13)
pad13.Profile = sketch15
pad13.Length = 1

# Sketch on XY plane
sketch16 = doc.addObject("Sketcher::SketchObject", "Sketch015")
body12.addObject(sketch16)
sketch16.AttachmentSupport = (doc.getObject("XY_Plane011"), [""])
sketch16.MapMode = "FlatFace"
sketch16.AttachmentOffset = App.Placement(V(0, 0, 27.25), App.Rotation())
sketch16.addGeometry(Part.LineSegment(V(39.6, -8.491783, 0), V(39.6, -1.5, 0)), False)
sketch16.addGeometry(Part.LineSegment(V(39.6, -1.5, 0), V(32, -1.5, 0)), False)
sketch16.addGeometry(Part.LineSegment(V(32, -1.5, 0), V(32, -11.8, 0)), False)
sketch16.addGeometry(Part.LineSegment(V(32, -11.8, 0), V(37.69, -11.8, 0)), False)
sketch16.addGeometry(Part.LineSegment(V(37.69, -11.8, 0), V(39.6, -8.491783, 0)), False)
sketch16.addConstraint(Sketcher.Constraint("Coincident", 0, 2, 1, 1))
sketch16.addConstraint(Sketcher.Constraint("Coincident", 1, 2, 2, 1))
sketch16.addConstraint(Sketcher.Constraint("Coincident", 2, 2, 3, 1))
sketch16.addConstraint(Sketcher.Constraint("Coincident", 3, 2, 4, 1))
sketch16.addConstraint(Sketcher.Constraint("Coincident", 4, 2, 0, 1))
sketch16.addConstraint(Sketcher.Constraint("Vertical", 0))
sketch16.addConstraint(Sketcher.Constraint("Horizontal", 1))
sketch16.addConstraint(Sketcher.Constraint("Vertical", 2))
sketch16.addConstraint(Sketcher.Constraint("Horizontal", 3))
sketch16.addConstraint(Sketcher.Constraint("Angle", 4, Q("60 deg")))
sketch16.addConstraint(Sketcher.Constraint("DistanceX", 1, 2, 1, 1, Q("7.6 mm")))
sketch16.addConstraint(Sketcher.Constraint("DistanceY", 2, 2, 2, 1, Q("10.3 mm")))
sketch16.addConstraint(Sketcher.Constraint("DistanceX", -1, 1, 1, 2, Q("32 mm")))
sketch16.addConstraint(Sketcher.Constraint("DistanceX", 3, 1, 3, 2, Q("5.69 mm")))
sketch16.addConstraint(Sketcher.Constraint("DistanceY", 0, 2, -1, 1, Q("1.5 mm")))
pad14 = doc.addObject("PartDesign::Pad", "Pad013")
body12.addObject(pad14)
pad14.Profile = sketch16
pad14.Length = 10
pad14.Reversed = True
body13 = doc.addObject("PartDesign::Body", "Body012")

# Sketch on YZ plane
sketch17 = doc.addObject("Sketcher::SketchObject", "Sketch016")
body13.addObject(sketch17)
sketch17.AttachmentSupport = (doc.getObject("YZ_Plane012"), [""])
sketch17.MapMode = "FlatFace"
sketch17.AttachmentOffset = App.Placement(V(0, 0, 35.8), App.Rotation())
sketch17.addGeometry(Part.LineSegment(V(0, 25.25, 0), V(-1.5, 25.25, 0)), False)
sketch17.addGeometry(Part.LineSegment(V(-1.5, 25.25, 0), V(-1.5, 24.25, 0)), False)
sketch17.addGeometry(Part.LineSegment(V(-1.5, 24.25, 0), V(0, 24.25, 0)), False)
sketch17.addGeometry(Part.LineSegment(V(0, 24.25, 0), V(0, 25.25, 0)), False)
sketch17.addConstraint(Sketcher.Constraint("Coincident", 0, 2, 1, 1))
sketch17.addConstraint(Sketcher.Constraint("Coincident", 1, 2, 2, 1))
sketch17.addConstraint(Sketcher.Constraint("Coincident", 2, 2, 3, 1))
sketch17.addConstraint(Sketcher.Constraint("Coincident", 3, 2, 0, 1))
sketch17.addConstraint(Sketcher.Constraint("Horizontal", 0))
sketch17.addConstraint(Sketcher.Constraint("Vertical", 1))
sketch17.addConstraint(Sketcher.Constraint("Horizontal", 2))
sketch17.addConstraint(Sketcher.Constraint("Vertical", 3))
sketch17.addConstraint(Sketcher.Constraint("PointOnObject", 2, 2, -2))
sketch17.addConstraint(Sketcher.Constraint("DistanceY", 1, 2, 1, 1, Q("1 mm")))
sketch17.addConstraint(Sketcher.Constraint("DistanceX", 0, 2, 0, 1, Q("1.5 mm")))
sketch17.addConstraint(Sketcher.Constraint("DistanceY", -1, 1, 0, 2, Q("25.25 mm")))
pad15 = doc.addObject("PartDesign::Pad", "Pad014")
body13.addObject(pad15)
pad15.Profile = sketch17
pad15.Length = 1
pad15.Reversed = True
body14 = doc.addObject("PartDesign::Body", "Body013")

# Sketch on YZ plane
sketch18 = doc.addObject("Sketcher::SketchObject", "Sketch017")
body14.addObject(sketch18)
sketch18.AttachmentSupport = (doc.getObject("YZ_Plane013"), [""])
sketch18.MapMode = "FlatFace"
sketch18.AttachmentOffset = App.Placement(V(0, 0, 35.8), App.Rotation())
sketch18.addGeometry(Part.LineSegment(V(0, 20.25, 0), V(-1.5, 20.25, 0)), False)
sketch18.addGeometry(Part.LineSegment(V(-1.5, 20.25, 0), V(-1.5, 19.25, 0)), False)
sketch18.addGeometry(Part.LineSegment(V(-1.5, 19.25, 0), V(0, 19.25, 0)), False)
sketch18.addGeometry(Part.LineSegment(V(0, 19.25, 0), V(0, 20.25, 0)), False)
sketch18.addConstraint(Sketcher.Constraint("Coincident", 0, 2, 1, 1))
sketch18.addConstraint(Sketcher.Constraint("Coincident", 1, 2, 2, 1))
sketch18.addConstraint(Sketcher.Constraint("Coincident", 2, 2, 3, 1))
sketch18.addConstraint(Sketcher.Constraint("Coincident", 3, 2, 0, 1))
sketch18.addConstraint(Sketcher.Constraint("Horizontal", 0))
sketch18.addConstraint(Sketcher.Constraint("Vertical", 1))
sketch18.addConstraint(Sketcher.Constraint("Horizontal", 2))
sketch18.addConstraint(Sketcher.Constraint("Vertical", 3))
sketch18.addConstraint(Sketcher.Constraint("PointOnObject", 2, 2, -2))
sketch18.addConstraint(Sketcher.Constraint("DistanceY", 1, 2, 1, 1, Q("1 mm")))
sketch18.addConstraint(Sketcher.Constraint("DistanceX", 0, 2, 0, 1, Q("1.5 mm")))
sketch18.addConstraint(Sketcher.Constraint("DistanceY", -1, 1, 0, 2, Q("20.25 mm")))
pad16 = doc.addObject("PartDesign::Pad", "Pad015")
body14.addObject(pad16)
pad16.Profile = sketch18
pad16.Length = 1
pad16.Reversed = True
body15 = doc.addObject("PartDesign::Body", "Body014")

# Sketch on XZ plane
sketch19 = doc.addObject("Sketcher::SketchObject", "Sketch018")
body15.addObject(sketch19)
sketch19.AttachmentSupport = (doc.getObject("XZ_Plane014"), [""])
sketch19.MapMode = "FlatFace"
sketch19.AttachmentOffset = App.Placement(V(0, 0, -5.9), App.Rotation())
sketch19.addGeometry(Part.Circle(V(-22.3, -24.05, 0), V(0, 0, 1), 8), False)
sketch19.addConstraint(Sketcher.Constraint("Diameter", 0, Q("16 mm")))
sketch19.addConstraint(Sketcher.Constraint("DistanceX", 0, 3, -1, 1, Q("22.3 mm")))
sketch19.addConstraint(Sketcher.Constraint("DistanceY", 0, 3, -1, 1, Q("24.05 mm")))
pad17 = doc.addObject("PartDesign::Pad", "Pad016")
body15.addObject(pad17)
pad17.Profile = sketch19
pad17.Length = 13
pad17.Reversed = True
body16 = doc.addObject("PartDesign::Body", "Body015")

# Sketch on XZ plane
sketch20 = doc.addObject("Sketcher::SketchObject", "Sketch019")
body16.addObject(sketch20)
sketch20.AttachmentSupport = (doc.getObject("XZ_Plane015"), [""])
sketch20.MapMode = "FlatFace"
sketch20.AttachmentOffset = App.Placement(V(0, 0, -5.9), App.Rotation())
sketch20.addGeometry(Part.Circle(V(22.47, -24.05, 0), V(0, 0, 1), 8), False)
sketch20.addConstraint(Sketcher.Constraint("Diameter", 0, Q("16 mm")))
sketch20.addConstraint(Sketcher.Constraint("DistanceX", -1, 1, 0, 3, Q("22.47 mm")))
sketch20.addConstraint(Sketcher.Constraint("DistanceY", 0, 3, -1, 1, Q("24.05 mm")))
pad18 = doc.addObject("PartDesign::Pad", "Pad017")
body16.addObject(pad18)
pad18.Profile = sketch20
pad18.Length = 13
pad18.Reversed = True
body17 = doc.addObject("PartDesign::Body", "Body016")

# Sketch on XZ plane
sketch21 = doc.addObject("Sketcher::SketchObject", "Sketch020")
body17.addObject(sketch21)
sketch21.AttachmentSupport = (doc.getObject("XZ_Plane016"), [""])
sketch21.MapMode = "FlatFace"
sketch21.AttachmentOffset = App.Placement(V(0, 0, -5.9), App.Rotation())
sketch21.addGeometry(Part.Circle(V(-22.3, -1.72, 0), V(0, 0, 1), 8), False)
sketch21.addConstraint(Sketcher.Constraint("Diameter", 0, Q("16 mm")))
sketch21.addConstraint(Sketcher.Constraint("DistanceX", 0, 3, -1, 1, Q("22.3 mm")))
sketch21.addConstraint(Sketcher.Constraint("DistanceY", 0, 3, -1, 1, Q("1.72 mm")))
pad19 = doc.addObject("PartDesign::Pad", "Pad018")
body17.addObject(pad19)
pad19.Profile = sketch21
pad19.Length = 13
pad19.Reversed = True
body18 = doc.addObject("PartDesign::Body", "Body017")

# Sketch on XZ plane
sketch22 = doc.addObject("Sketcher::SketchObject", "Sketch021")
body18.addObject(sketch22)
sketch22.AttachmentSupport = (doc.getObject("XZ_Plane017"), [""])
sketch22.MapMode = "FlatFace"
sketch22.AttachmentOffset = App.Placement(V(0, 0, -5.9), App.Rotation())
sketch22.addGeometry(Part.Circle(V(22.47, -1.72, 0), V(0, 0, 1), 8), False)
sketch22.addConstraint(Sketcher.Constraint("Diameter", 0, Q("16 mm")))
sketch22.addConstraint(Sketcher.Constraint("DistanceX", -1, 1, 0, 3, Q("22.47 mm")))
sketch22.addConstraint(Sketcher.Constraint("DistanceY", 0, 3, -1, 1, Q("1.72 mm")))
pad20 = doc.addObject("PartDesign::Pad", "Pad019")
body18.addObject(pad20)
pad20.Profile = sketch22
pad20.Length = 13
pad20.Reversed = True
body19 = doc.addObject("PartDesign::Body", "Body018")

# Sketch on XZ plane
sketch23 = doc.addObject("Sketcher::SketchObject", "Sketch022")
body19.addObject(sketch23)
sketch23.AttachmentSupport = (doc.getObject("XZ_Plane018"), [""])
sketch23.MapMode = "FlatFace"
sketch23.addGeometry(Part.LineSegment(V(-11.577, -17.382, 0), V(-11.577, -25.582, 0)), False)
sketch23.addGeometry(Part.LineSegment(V(-11.577, -25.582, 0), V(11.623, -25.582, 0)), False)
sketch23.addGeometry(Part.LineSegment(V(11.623, -25.582, 0), V(11.623, -17.382, 0)), False)
sketch23.addGeometry(Part.LineSegment(V(11.623, -17.382, 0), V(-11.577, -17.382, 0)), False)
sketch23.addConstraint(Sketcher.Constraint("Coincident", 0, 2, 1, 1))
sketch23.addConstraint(Sketcher.Constraint("Coincident", 1, 2, 2, 1))
sketch23.addConstraint(Sketcher.Constraint("Coincident", 2, 2, 3, 1))
sketch23.addConstraint(Sketcher.Constraint("Coincident", 3, 2, 0, 1))
sketch23.addConstraint(Sketcher.Constraint("Vertical", 0))
sketch23.addConstraint(Sketcher.Constraint("Horizontal", 1))
sketch23.addConstraint(Sketcher.Constraint("Vertical", 2))
sketch23.addConstraint(Sketcher.Constraint("Horizontal", 3))
sketch23.addConstraint(Sketcher.Constraint("DistanceX", 1, 1, 1, 2, Q("23.2 mm")))
sketch23.addConstraint(Sketcher.Constraint("DistanceY", 0, 2, 0, 1, Q("8.2 mm")))
sketch23.addConstraint(Sketcher.Constraint("DistanceX", 0, 2, -1, 1, Q("11.577 mm")))
sketch23.addConstraint(Sketcher.Constraint("DistanceY", 0, 2, -1, 1, Q("25.582 mm")))
pad21 = doc.addObject("PartDesign::Pad", "Pad020")
body19.addObject(pad21)
pad21.Profile = sketch23
pad21.Length = 4
doc.recompute()

chamfer = doc.addObject("PartDesign::Chamfer", "Chamfer")
body19.addObject(chamfer)
chamfer.Base = (pad21, edges_at(pad21, [
    (-11.577, -4, -21.482),
    (0.023, -4, -25.582),
    (11.623, -4, -21.482),
    (0.023, -4, -17.382),
]))
chamfer.Size = 1.5
body15.AllowCompound = True
doc.recompute()

boolean = doc.addObject("PartDesign::Boolean", "Boolean")
body15.addObject(boolean)
boolean.Type = "Fuse"
boolean.addObjects([body16])
doc.recompute()

boolean2 = doc.addObject("PartDesign::Boolean", "Boolean001")
body15.addObject(boolean2)
boolean2.Type = "Fuse"
boolean2.addObjects([body17])
doc.recompute()

boolean3 = doc.addObject("PartDesign::Boolean", "Boolean002")
body15.addObject(boolean3)
boolean3.Type = "Fuse"
boolean3.addObjects([body18])

# Sketch on XZ plane
sketch24 = doc.addObject("Sketcher::SketchObject", "Sketch023")
body15.addObject(sketch24)
sketch24.AttachmentSupport = (doc.getObject("XZ_Plane014"), [""])
sketch24.MapMode = "FlatFace"
sketch24.AttachmentOffset = App.Placement(V(0, 0, -18.9), App.Rotation())
sketch24.addGeometry(Part.Circle(V(-22.3, -24.05, 0), V(0, 0, 1), 9.5), False)
sketch24.addGeometry(Part.Circle(V(22.47, -24.05, 0), V(0, 0, 1), 9.5), False)
sketch24.addGeometry(Part.Circle(V(-22.3, -1.72, 0), V(0, 0, 1), 9.5), False)
sketch24.addGeometry(Part.Circle(V(22.47, -1.72, 0), V(0, 0, 1), 9.5), False)
sketch24.addConstraint(Sketcher.Constraint("Equal", 0, 1))
sketch24.addConstraint(Sketcher.Constraint("Equal", 1, 2))
sketch24.addConstraint(Sketcher.Constraint("Equal", 2, 3))
sketch24.addConstraint(Sketcher.Constraint("Horizontal", 0, 3, 1, 3))
sketch24.addConstraint(Sketcher.Constraint("Horizontal", 2, 3, 3, 3))
sketch24.addConstraint(Sketcher.Constraint("Vertical", 0, 3, 2, 3))
sketch24.addConstraint(Sketcher.Constraint("Vertical", 1, 3, 3, 3))
sketch24.addConstraint(Sketcher.Constraint("Diameter", 0, Q("19 mm")))
sketch24.addConstraint(Sketcher.Constraint("DistanceX", 0, 3, -1, 1, Q("22.3 mm")))
sketch24.addConstraint(Sketcher.Constraint("DistanceY", 0, 3, -1, 1, Q("24.05 mm")))
sketch24.addConstraint(Sketcher.Constraint("DistanceX", -1, 1, 1, 3, Q("22.47 mm")))
sketch24.addConstraint(Sketcher.Constraint("DistanceY", 2, 3, -1, 1, Q("1.72 mm")))
pad22 = doc.addObject("PartDesign::Pad", "Pad021")
body15.addObject(pad22)
pad22.Profile = sketch24
pad22.Length = 2.5
pad22.Reversed = True
doc.recompute()

chamfer2 = doc.addObject("PartDesign::Chamfer", "Chamfer001")
body15.addObject(chamfer2)
chamfer2.Base = (pad22, edges_at(pad22, [(-22.3, 21.4, -33.55)]))
chamfer2.Size = 1.5
doc.recompute()

chamfer3 = doc.addObject("PartDesign::Chamfer", "Chamfer002")
body15.addObject(chamfer3)
chamfer3.Base = (chamfer2, edges_at(chamfer2, [(-22.3, 21.4, -11.22)]))
chamfer3.Size = 1.5
doc.recompute()

chamfer4 = doc.addObject("PartDesign::Chamfer", "Chamfer003")
body15.addObject(chamfer4)
chamfer4.Base = (chamfer3, edges_at(chamfer3, [(22.47, 21.4, -33.55)]))
chamfer4.Size = 1.5
doc.recompute()

chamfer5 = doc.addObject("PartDesign::Chamfer", "Chamfer004")
body15.addObject(chamfer5)
chamfer5.Base = (chamfer4, edges_at(chamfer4, [(22.47, 21.4, -11.22)]))
chamfer5.Size = 1.5
body20 = doc.addObject("PartDesign::Body", "Body019")

# Sketch on XZ plane
sketch25 = doc.addObject("Sketcher::SketchObject", "Sketch024")
body20.addObject(sketch25)
sketch25.AttachmentSupport = (doc.getObject("XZ_Plane019"), [""])
sketch25.MapMode = "FlatFace"
sketch25.AttachmentOffset = App.Placement(V(0, 0, -21.4), App.Rotation())
sketch25.addGeometry(Part.Circle(V(-22.3, -24.05, 0), V(0, 0, 1), 6.4), False)
sketch25.addConstraint(Sketcher.Constraint("Diameter", 0, Q("12.8 mm")))
sketch25.addConstraint(Sketcher.Constraint("DistanceX", 0, 3, -1, 1, Q("22.3 mm")))
sketch25.addConstraint(Sketcher.Constraint("DistanceY", 0, 3, -1, 1, Q("24.05 mm")))
pad23 = doc.addObject("PartDesign::Pad", "Pad022")
body20.addObject(pad23)
pad23.Profile = sketch25
pad23.Length = 4
pad23.Reversed = True
body21 = doc.addObject("PartDesign::Body", "Body020")

# Sketch on XZ plane
sketch26 = doc.addObject("Sketcher::SketchObject", "Sketch025")
body21.addObject(sketch26)
sketch26.AttachmentSupport = (doc.getObject("XZ_Plane020"), [""])
sketch26.MapMode = "FlatFace"
sketch26.AttachmentOffset = App.Placement(V(0, 0, -21.4), App.Rotation())
sketch26.addGeometry(Part.Circle(V(22.47, -24.05, 0), V(0, 0, 1), 6.4), False)
sketch26.addConstraint(Sketcher.Constraint("Diameter", 0, Q("12.8 mm")))
sketch26.addConstraint(Sketcher.Constraint("DistanceX", -1, 1, 0, 3, Q("22.47 mm")))
sketch26.addConstraint(Sketcher.Constraint("DistanceY", 0, 3, -1, 1, Q("24.05 mm")))
pad24 = doc.addObject("PartDesign::Pad", "Pad023")
body21.addObject(pad24)
pad24.Profile = sketch26
pad24.Length = 4
pad24.Reversed = True
body22 = doc.addObject("PartDesign::Body", "Body021")

# Sketch on XZ plane
sketch27 = doc.addObject("Sketcher::SketchObject", "Sketch026")
body22.addObject(sketch27)
sketch27.AttachmentSupport = (doc.getObject("XZ_Plane021"), [""])
sketch27.MapMode = "FlatFace"
sketch27.AttachmentOffset = App.Placement(V(0, 0, -21.4), App.Rotation())
sketch27.addGeometry(Part.Circle(V(-22.3, -1.72, 0), V(0, 0, 1), 6.4), False)
sketch27.addConstraint(Sketcher.Constraint("Diameter", 0, Q("12.8 mm")))
sketch27.addConstraint(Sketcher.Constraint("DistanceX", 0, 3, -1, 1, Q("22.3 mm")))
sketch27.addConstraint(Sketcher.Constraint("DistanceY", 0, 3, -1, 1, Q("1.72 mm")))
pad25 = doc.addObject("PartDesign::Pad", "Pad024")
body22.addObject(pad25)
pad25.Profile = sketch27
pad25.Length = 4
pad25.Reversed = True
body23 = doc.addObject("PartDesign::Body", "Body022")

# Sketch on XZ plane
sketch28 = doc.addObject("Sketcher::SketchObject", "Sketch027")
body23.addObject(sketch28)
sketch28.AttachmentSupport = (doc.getObject("XZ_Plane022"), [""])
sketch28.MapMode = "FlatFace"
sketch28.AttachmentOffset = App.Placement(V(0, 0, -21.4), App.Rotation())
sketch28.addGeometry(Part.Circle(V(22.47, -1.72, 0), V(0, 0, 1), 6.4), False)
sketch28.addConstraint(Sketcher.Constraint("Diameter", 0, Q("12.8 mm")))
sketch28.addConstraint(Sketcher.Constraint("DistanceX", -1, 1, 0, 3, Q("22.47 mm")))
sketch28.addConstraint(Sketcher.Constraint("DistanceY", 0, 3, -1, 1, Q("1.72 mm")))
pad26 = doc.addObject("PartDesign::Pad", "Pad025")
body23.addObject(pad26)
pad26.Profile = sketch28
pad26.Length = 4
pad26.Reversed = True

doc.recompute()
